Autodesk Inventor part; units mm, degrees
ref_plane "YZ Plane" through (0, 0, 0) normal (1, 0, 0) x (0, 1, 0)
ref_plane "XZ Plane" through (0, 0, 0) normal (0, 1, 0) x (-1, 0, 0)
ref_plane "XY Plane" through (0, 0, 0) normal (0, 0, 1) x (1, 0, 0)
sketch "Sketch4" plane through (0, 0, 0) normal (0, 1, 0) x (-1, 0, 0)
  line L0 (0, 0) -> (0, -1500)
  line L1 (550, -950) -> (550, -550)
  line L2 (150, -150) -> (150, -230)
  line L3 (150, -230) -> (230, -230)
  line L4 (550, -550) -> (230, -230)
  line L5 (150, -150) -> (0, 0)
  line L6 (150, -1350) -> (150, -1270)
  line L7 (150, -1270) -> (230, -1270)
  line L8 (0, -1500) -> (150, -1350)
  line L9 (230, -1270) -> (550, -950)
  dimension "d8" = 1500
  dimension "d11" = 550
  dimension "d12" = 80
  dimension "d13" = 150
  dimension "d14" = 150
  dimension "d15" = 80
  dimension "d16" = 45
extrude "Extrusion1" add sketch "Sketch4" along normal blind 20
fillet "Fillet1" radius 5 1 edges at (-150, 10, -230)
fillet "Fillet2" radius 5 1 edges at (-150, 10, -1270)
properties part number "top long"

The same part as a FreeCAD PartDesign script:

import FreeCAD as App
import Part
import Sketcher
from FreeCAD import Vector
Q = App.Units.Quantity


def edges_at(feature, points):
    """Names of the edges that pass closest to the given points."""
    edges = feature.Shape.Edges
    near = lambda p: min(range(len(edges)), key=lambda i: edges[i].distToShape(Part.Vertex(*p))[0])
    return sorted({f"Edge{near(p) + 1}" for p in points})


def add_polygon(sketch, points):
    """Adds a closed chain of lines whose ends are joined by coincident constraints."""
    first, n = sketch.GeometryCount, len(points)
    for a, b in zip(points, points[1:] + points[:1]):
        sketch.addGeometry(Part.LineSegment(App.Vector(*a, 0), App.Vector(*b, 0)), False)
    for i in range(n):
        sketch.addConstraint(Sketcher.Constraint("Coincident", first + i, 2, first + (i + 1) % n, 1))

doc = App.newDocument("Part")
body = doc.addObject("PartDesign::Body", "Body")

# Sketch on XZ plane
sketch1 = body.newObject("Sketcher::SketchObject", "Sketch")
sketch1.AttachmentSupport = (doc.getObject("XZ_Plane"), [""])
sketch1.MapMode = "FlatFace"
add_polygon(sketch1, [(-150, -150), (0, 0), (0, -1500), (-150, -1350), (-150, -1270), (-230, -1270), (-550, -950), (-550, -550), (-230, -230), (-150, -230)])  # lines 0-9
sketch1.addConstraint(Sketcher.Constraint("Vertical", 1))
sketch1.addConstraint(Sketcher.Constraint("Vertical", 3))
sketch1.addConstraint(Sketcher.Constraint("Horizontal", 4))
sketch1.addConstraint(Sketcher.Constraint("Vertical", 6))
sketch1.addConstraint(Sketcher.Constraint("Horizontal", 8))
sketch1.addConstraint(Sketcher.Constraint("Vertical", 9))
sketch1.addConstraint(Sketcher.Constraint("Coincident", 0, 2, -1, 1))
sketch1.addConstraint(Sketcher.Constraint("Perpendicular", 0, 2))
sketch1.addConstraint(Sketcher.Constraint("Parallel", 2, 5))
sketch1.addConstraint(Sketcher.Constraint("Perpendicular", 5, 7))
sketch1.addConstraint(Sketcher.Constraint("Vertical", 4, 2, 7, 2))
sketch1.addConstraint(Sketcher.Constraint("Vertical", 3, 2, 8, 2))
sketch1.addConstraint(Sketcher.Constraint("Equal", 8, 3))
sketch1.addConstraint(Sketcher.Constraint("Equal", 3, 9))
sketch1.addConstraint(Sketcher.Constraint("Equal", 0, 2))
sketch1.addConstraint(Sketcher.Constraint("DistanceX", 4, 2, 4, 1, Q("80 mm")))
sketch1.addConstraint(Sketcher.Constraint("DistanceY", 1, 2, 1, 1, Q("1500 mm")))
sketch1.addConstraint(Sketcher.Constraint("DistanceX", 2, 2, -1, 1, Q("150 mm")))
sketch1.addConstraint(Sketcher.Constraint("DistanceX", 5, 2, -1, 1, Q("550 mm")))
pad1 = body.newObject("PartDesign::Pad", "Pad")
pad1.Profile = sketch1
pad1.Length = 20
pad1.Reversed = True
doc.recompute()

fillet = body.newObject("PartDesign::Fillet", "Fillet")
fillet.Base = (pad1, edges_at(pad1, [(-150, 10, -230)]))
fillet.Radius = 5
doc.recompute()

fillet2 = body.newObject("PartDesign::Fillet", "Fillet001")
fillet2.Base = (fillet, edges_at(fillet, [(-150, 10, -1270)]))
fillet2.Radius = 5

doc.recompute()
